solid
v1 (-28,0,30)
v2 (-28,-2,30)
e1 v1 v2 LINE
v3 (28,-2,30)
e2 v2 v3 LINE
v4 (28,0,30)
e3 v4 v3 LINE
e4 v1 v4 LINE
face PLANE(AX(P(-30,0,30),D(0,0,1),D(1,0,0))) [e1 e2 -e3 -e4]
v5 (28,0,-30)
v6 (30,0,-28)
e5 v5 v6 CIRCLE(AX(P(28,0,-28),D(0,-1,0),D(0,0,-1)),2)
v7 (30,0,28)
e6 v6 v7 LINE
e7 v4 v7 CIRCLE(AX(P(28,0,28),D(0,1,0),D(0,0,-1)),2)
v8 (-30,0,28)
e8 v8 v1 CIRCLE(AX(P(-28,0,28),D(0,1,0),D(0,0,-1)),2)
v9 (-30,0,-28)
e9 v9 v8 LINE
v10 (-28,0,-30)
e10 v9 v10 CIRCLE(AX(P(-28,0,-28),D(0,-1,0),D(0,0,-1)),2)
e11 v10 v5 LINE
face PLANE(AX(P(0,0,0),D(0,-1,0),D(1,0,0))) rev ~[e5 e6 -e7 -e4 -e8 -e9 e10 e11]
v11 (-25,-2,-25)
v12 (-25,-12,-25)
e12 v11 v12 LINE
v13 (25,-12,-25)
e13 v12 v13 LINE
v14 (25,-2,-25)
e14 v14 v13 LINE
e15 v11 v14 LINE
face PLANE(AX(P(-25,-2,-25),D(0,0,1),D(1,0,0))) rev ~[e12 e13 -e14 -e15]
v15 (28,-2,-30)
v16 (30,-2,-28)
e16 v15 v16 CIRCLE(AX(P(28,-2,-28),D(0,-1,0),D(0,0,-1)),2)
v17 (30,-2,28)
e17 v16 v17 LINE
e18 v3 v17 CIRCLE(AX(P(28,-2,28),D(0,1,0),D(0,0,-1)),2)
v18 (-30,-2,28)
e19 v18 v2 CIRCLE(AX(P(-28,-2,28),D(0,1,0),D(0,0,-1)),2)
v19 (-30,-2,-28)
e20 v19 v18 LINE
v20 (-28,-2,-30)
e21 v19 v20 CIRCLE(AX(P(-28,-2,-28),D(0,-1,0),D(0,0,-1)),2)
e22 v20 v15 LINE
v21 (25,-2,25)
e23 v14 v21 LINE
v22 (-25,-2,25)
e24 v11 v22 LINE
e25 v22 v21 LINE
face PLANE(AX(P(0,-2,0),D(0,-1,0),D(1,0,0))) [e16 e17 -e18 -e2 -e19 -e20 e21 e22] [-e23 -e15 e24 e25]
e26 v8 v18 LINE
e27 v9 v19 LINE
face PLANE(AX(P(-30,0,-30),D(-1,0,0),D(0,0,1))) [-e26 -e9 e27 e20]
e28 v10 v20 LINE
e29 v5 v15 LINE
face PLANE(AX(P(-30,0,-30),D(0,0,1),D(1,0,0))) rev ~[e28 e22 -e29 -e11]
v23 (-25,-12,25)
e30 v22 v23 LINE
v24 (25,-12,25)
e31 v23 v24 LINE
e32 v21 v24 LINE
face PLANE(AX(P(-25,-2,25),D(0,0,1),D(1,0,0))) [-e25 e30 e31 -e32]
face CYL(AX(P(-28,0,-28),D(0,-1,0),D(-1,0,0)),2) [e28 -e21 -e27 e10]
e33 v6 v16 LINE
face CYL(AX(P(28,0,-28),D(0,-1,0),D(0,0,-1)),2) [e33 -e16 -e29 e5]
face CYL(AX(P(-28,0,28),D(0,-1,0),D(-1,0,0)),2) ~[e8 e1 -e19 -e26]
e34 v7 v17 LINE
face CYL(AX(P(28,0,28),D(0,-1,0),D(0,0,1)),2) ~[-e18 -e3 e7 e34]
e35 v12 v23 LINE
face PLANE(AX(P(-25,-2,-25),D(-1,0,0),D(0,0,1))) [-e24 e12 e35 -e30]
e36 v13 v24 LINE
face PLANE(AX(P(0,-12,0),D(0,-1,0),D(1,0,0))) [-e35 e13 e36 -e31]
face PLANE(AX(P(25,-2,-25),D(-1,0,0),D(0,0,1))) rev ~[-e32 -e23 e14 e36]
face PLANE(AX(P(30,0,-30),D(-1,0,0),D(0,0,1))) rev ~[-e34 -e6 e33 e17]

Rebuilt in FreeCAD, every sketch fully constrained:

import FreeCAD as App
import Part
import Sketcher

V = App.Vector


def edges_at(feature, points):
    """Names of the edges that pass closest to the given points."""
    edges = feature.Shape.Edges
    near = lambda p: min(range(len(edges)), key=lambda i: edges[i].distToShape(Part.Vertex(*p))[0])
    return sorted({f"Edge{near(p) + 1}" for p in points})

doc = App.newDocument("Part")
body = doc.addObject("PartDesign::Body", "Body")

# Sketch on XZ plane
sketch1 = body.newObject("Sketcher::SketchObject", "Sketch")
sketch1.AttachmentSupport = (doc.getObject("XZ_Plane"), [""])
sketch1.MapMode = "FlatFace"
sketch1.addGeometry(Part.LineSegment(V(-30, 30, 0), V(-30, -30, 0)), False)
sketch1.addGeometry(Part.LineSegment(V(-30, -30, 0), V(30, -30, 0)), False)
sketch1.addGeometry(Part.LineSegment(V(30, -30, 0), V(30, 30, 0)), False)
sketch1.addGeometry(Part.LineSegment(V(30, 30, 0), V(-30, 30, 0)), False)
sketch1.addConstraint(Sketcher.Constraint("Coincident", 0, 2, 1, 1))
sketch1.addConstraint(Sketcher.Constraint("Coincident", 1, 2, 2, 1))
sketch1.addConstraint(Sketcher.Constraint("Coincident", 2, 2, 3, 1))
sketch1.addConstraint(Sketcher.Constraint("Coincident", 3, 2, 0, 1))
sketch1.addConstraint(Sketcher.Constraint("Vertical", 0))
sketch1.addConstraint(Sketcher.Constraint("Horizontal", 1))
sketch1.addConstraint(Sketcher.Constraint("Vertical", 2))
sketch1.addConstraint(Sketcher.Constraint("Horizontal", 3))
sketch1.addConstraint(Sketcher.Constraint("Symmetric", 0, 2, 2, 2, -1, 1))
sketch1.addConstraint(Sketcher.Constraint("Equal", 3, 0))
sketch1.addConstraint(Sketcher.Constraint("DistanceX", 1, 1, 1, 2, 60.0))
pad1 = body.newObject("PartDesign::Pad", "Pad")
pad1.Profile = sketch1
pad1.Length = 2

# Sketch on XZ plane
sketch2 = body.newObject("Sketcher::SketchObject", "Sketch001")
sketch2.AttachmentSupport = (doc.getObject("XZ_Plane"), [""])
sketch2.MapMode = "FlatFace"
sketch2.AttachmentOffset = App.Placement(V(0, 0, 2), App.Rotation())
sketch2.addGeometry(Part.LineSegment(V(-25, 25, 0), V(-25, -25, 0)), False)
sketch2.addGeometry(Part.LineSegment(V(-25, -25, 0), V(25, -25, 0)), False)
sketch2.addGeometry(Part.LineSegment(V(25, -25, 0), V(25, 25, 0)), False)
sketch2.addGeometry(Part.LineSegment(V(25, 25, 0), V(-25, 25, 0)), False)
sketch2.addConstraint(Sketcher.Constraint("Coincident", 0, 2, 1, 1))
sketch2.addConstraint(Sketcher.Constraint("Coincident", 1, 2, 2, 1))
sketch2.addConstraint(Sketcher.Constraint("Coincident", 2, 2, 3, 1))
sketch2.addConstraint(Sketcher.Constraint("Coincident", 3, 2, 0, 1))
sketch2.addConstraint(Sketcher.Constraint("Vertical", 0))
sketch2.addConstraint(Sketcher.Constraint("Horizontal", 1))
sketch2.addConstraint(Sketcher.Constraint("Vertical", 2))
sketch2.addConstraint(Sketcher.Constraint("Horizontal", 3))
sketch2.addConstraint(Sketcher.Constraint("Symmetric", 0, 2, 2, 2, -1, 1))
sketch2.addConstraint(Sketcher.Constraint("Equal", 3, 0))
sketch2.addConstraint(Sketcher.Constraint("DistanceX", 1, 1, 1, 2, 50.0))
pad2 = body.newObject("PartDesign::Pad", "Pad001")
pad2.Profile = sketch2
pad2.Length = 10
doc.recompute()

fillet = body.newObject("PartDesign::Fillet", "Fillet")
fillet.Base = (pad2, edges_at(pad2, [
    (30, -1, -30),
    (30, -1, 30),
    (-30, -1, 30),
    (-30, -1, -30),
]))
fillet.Radius = 2

doc.recompute()
